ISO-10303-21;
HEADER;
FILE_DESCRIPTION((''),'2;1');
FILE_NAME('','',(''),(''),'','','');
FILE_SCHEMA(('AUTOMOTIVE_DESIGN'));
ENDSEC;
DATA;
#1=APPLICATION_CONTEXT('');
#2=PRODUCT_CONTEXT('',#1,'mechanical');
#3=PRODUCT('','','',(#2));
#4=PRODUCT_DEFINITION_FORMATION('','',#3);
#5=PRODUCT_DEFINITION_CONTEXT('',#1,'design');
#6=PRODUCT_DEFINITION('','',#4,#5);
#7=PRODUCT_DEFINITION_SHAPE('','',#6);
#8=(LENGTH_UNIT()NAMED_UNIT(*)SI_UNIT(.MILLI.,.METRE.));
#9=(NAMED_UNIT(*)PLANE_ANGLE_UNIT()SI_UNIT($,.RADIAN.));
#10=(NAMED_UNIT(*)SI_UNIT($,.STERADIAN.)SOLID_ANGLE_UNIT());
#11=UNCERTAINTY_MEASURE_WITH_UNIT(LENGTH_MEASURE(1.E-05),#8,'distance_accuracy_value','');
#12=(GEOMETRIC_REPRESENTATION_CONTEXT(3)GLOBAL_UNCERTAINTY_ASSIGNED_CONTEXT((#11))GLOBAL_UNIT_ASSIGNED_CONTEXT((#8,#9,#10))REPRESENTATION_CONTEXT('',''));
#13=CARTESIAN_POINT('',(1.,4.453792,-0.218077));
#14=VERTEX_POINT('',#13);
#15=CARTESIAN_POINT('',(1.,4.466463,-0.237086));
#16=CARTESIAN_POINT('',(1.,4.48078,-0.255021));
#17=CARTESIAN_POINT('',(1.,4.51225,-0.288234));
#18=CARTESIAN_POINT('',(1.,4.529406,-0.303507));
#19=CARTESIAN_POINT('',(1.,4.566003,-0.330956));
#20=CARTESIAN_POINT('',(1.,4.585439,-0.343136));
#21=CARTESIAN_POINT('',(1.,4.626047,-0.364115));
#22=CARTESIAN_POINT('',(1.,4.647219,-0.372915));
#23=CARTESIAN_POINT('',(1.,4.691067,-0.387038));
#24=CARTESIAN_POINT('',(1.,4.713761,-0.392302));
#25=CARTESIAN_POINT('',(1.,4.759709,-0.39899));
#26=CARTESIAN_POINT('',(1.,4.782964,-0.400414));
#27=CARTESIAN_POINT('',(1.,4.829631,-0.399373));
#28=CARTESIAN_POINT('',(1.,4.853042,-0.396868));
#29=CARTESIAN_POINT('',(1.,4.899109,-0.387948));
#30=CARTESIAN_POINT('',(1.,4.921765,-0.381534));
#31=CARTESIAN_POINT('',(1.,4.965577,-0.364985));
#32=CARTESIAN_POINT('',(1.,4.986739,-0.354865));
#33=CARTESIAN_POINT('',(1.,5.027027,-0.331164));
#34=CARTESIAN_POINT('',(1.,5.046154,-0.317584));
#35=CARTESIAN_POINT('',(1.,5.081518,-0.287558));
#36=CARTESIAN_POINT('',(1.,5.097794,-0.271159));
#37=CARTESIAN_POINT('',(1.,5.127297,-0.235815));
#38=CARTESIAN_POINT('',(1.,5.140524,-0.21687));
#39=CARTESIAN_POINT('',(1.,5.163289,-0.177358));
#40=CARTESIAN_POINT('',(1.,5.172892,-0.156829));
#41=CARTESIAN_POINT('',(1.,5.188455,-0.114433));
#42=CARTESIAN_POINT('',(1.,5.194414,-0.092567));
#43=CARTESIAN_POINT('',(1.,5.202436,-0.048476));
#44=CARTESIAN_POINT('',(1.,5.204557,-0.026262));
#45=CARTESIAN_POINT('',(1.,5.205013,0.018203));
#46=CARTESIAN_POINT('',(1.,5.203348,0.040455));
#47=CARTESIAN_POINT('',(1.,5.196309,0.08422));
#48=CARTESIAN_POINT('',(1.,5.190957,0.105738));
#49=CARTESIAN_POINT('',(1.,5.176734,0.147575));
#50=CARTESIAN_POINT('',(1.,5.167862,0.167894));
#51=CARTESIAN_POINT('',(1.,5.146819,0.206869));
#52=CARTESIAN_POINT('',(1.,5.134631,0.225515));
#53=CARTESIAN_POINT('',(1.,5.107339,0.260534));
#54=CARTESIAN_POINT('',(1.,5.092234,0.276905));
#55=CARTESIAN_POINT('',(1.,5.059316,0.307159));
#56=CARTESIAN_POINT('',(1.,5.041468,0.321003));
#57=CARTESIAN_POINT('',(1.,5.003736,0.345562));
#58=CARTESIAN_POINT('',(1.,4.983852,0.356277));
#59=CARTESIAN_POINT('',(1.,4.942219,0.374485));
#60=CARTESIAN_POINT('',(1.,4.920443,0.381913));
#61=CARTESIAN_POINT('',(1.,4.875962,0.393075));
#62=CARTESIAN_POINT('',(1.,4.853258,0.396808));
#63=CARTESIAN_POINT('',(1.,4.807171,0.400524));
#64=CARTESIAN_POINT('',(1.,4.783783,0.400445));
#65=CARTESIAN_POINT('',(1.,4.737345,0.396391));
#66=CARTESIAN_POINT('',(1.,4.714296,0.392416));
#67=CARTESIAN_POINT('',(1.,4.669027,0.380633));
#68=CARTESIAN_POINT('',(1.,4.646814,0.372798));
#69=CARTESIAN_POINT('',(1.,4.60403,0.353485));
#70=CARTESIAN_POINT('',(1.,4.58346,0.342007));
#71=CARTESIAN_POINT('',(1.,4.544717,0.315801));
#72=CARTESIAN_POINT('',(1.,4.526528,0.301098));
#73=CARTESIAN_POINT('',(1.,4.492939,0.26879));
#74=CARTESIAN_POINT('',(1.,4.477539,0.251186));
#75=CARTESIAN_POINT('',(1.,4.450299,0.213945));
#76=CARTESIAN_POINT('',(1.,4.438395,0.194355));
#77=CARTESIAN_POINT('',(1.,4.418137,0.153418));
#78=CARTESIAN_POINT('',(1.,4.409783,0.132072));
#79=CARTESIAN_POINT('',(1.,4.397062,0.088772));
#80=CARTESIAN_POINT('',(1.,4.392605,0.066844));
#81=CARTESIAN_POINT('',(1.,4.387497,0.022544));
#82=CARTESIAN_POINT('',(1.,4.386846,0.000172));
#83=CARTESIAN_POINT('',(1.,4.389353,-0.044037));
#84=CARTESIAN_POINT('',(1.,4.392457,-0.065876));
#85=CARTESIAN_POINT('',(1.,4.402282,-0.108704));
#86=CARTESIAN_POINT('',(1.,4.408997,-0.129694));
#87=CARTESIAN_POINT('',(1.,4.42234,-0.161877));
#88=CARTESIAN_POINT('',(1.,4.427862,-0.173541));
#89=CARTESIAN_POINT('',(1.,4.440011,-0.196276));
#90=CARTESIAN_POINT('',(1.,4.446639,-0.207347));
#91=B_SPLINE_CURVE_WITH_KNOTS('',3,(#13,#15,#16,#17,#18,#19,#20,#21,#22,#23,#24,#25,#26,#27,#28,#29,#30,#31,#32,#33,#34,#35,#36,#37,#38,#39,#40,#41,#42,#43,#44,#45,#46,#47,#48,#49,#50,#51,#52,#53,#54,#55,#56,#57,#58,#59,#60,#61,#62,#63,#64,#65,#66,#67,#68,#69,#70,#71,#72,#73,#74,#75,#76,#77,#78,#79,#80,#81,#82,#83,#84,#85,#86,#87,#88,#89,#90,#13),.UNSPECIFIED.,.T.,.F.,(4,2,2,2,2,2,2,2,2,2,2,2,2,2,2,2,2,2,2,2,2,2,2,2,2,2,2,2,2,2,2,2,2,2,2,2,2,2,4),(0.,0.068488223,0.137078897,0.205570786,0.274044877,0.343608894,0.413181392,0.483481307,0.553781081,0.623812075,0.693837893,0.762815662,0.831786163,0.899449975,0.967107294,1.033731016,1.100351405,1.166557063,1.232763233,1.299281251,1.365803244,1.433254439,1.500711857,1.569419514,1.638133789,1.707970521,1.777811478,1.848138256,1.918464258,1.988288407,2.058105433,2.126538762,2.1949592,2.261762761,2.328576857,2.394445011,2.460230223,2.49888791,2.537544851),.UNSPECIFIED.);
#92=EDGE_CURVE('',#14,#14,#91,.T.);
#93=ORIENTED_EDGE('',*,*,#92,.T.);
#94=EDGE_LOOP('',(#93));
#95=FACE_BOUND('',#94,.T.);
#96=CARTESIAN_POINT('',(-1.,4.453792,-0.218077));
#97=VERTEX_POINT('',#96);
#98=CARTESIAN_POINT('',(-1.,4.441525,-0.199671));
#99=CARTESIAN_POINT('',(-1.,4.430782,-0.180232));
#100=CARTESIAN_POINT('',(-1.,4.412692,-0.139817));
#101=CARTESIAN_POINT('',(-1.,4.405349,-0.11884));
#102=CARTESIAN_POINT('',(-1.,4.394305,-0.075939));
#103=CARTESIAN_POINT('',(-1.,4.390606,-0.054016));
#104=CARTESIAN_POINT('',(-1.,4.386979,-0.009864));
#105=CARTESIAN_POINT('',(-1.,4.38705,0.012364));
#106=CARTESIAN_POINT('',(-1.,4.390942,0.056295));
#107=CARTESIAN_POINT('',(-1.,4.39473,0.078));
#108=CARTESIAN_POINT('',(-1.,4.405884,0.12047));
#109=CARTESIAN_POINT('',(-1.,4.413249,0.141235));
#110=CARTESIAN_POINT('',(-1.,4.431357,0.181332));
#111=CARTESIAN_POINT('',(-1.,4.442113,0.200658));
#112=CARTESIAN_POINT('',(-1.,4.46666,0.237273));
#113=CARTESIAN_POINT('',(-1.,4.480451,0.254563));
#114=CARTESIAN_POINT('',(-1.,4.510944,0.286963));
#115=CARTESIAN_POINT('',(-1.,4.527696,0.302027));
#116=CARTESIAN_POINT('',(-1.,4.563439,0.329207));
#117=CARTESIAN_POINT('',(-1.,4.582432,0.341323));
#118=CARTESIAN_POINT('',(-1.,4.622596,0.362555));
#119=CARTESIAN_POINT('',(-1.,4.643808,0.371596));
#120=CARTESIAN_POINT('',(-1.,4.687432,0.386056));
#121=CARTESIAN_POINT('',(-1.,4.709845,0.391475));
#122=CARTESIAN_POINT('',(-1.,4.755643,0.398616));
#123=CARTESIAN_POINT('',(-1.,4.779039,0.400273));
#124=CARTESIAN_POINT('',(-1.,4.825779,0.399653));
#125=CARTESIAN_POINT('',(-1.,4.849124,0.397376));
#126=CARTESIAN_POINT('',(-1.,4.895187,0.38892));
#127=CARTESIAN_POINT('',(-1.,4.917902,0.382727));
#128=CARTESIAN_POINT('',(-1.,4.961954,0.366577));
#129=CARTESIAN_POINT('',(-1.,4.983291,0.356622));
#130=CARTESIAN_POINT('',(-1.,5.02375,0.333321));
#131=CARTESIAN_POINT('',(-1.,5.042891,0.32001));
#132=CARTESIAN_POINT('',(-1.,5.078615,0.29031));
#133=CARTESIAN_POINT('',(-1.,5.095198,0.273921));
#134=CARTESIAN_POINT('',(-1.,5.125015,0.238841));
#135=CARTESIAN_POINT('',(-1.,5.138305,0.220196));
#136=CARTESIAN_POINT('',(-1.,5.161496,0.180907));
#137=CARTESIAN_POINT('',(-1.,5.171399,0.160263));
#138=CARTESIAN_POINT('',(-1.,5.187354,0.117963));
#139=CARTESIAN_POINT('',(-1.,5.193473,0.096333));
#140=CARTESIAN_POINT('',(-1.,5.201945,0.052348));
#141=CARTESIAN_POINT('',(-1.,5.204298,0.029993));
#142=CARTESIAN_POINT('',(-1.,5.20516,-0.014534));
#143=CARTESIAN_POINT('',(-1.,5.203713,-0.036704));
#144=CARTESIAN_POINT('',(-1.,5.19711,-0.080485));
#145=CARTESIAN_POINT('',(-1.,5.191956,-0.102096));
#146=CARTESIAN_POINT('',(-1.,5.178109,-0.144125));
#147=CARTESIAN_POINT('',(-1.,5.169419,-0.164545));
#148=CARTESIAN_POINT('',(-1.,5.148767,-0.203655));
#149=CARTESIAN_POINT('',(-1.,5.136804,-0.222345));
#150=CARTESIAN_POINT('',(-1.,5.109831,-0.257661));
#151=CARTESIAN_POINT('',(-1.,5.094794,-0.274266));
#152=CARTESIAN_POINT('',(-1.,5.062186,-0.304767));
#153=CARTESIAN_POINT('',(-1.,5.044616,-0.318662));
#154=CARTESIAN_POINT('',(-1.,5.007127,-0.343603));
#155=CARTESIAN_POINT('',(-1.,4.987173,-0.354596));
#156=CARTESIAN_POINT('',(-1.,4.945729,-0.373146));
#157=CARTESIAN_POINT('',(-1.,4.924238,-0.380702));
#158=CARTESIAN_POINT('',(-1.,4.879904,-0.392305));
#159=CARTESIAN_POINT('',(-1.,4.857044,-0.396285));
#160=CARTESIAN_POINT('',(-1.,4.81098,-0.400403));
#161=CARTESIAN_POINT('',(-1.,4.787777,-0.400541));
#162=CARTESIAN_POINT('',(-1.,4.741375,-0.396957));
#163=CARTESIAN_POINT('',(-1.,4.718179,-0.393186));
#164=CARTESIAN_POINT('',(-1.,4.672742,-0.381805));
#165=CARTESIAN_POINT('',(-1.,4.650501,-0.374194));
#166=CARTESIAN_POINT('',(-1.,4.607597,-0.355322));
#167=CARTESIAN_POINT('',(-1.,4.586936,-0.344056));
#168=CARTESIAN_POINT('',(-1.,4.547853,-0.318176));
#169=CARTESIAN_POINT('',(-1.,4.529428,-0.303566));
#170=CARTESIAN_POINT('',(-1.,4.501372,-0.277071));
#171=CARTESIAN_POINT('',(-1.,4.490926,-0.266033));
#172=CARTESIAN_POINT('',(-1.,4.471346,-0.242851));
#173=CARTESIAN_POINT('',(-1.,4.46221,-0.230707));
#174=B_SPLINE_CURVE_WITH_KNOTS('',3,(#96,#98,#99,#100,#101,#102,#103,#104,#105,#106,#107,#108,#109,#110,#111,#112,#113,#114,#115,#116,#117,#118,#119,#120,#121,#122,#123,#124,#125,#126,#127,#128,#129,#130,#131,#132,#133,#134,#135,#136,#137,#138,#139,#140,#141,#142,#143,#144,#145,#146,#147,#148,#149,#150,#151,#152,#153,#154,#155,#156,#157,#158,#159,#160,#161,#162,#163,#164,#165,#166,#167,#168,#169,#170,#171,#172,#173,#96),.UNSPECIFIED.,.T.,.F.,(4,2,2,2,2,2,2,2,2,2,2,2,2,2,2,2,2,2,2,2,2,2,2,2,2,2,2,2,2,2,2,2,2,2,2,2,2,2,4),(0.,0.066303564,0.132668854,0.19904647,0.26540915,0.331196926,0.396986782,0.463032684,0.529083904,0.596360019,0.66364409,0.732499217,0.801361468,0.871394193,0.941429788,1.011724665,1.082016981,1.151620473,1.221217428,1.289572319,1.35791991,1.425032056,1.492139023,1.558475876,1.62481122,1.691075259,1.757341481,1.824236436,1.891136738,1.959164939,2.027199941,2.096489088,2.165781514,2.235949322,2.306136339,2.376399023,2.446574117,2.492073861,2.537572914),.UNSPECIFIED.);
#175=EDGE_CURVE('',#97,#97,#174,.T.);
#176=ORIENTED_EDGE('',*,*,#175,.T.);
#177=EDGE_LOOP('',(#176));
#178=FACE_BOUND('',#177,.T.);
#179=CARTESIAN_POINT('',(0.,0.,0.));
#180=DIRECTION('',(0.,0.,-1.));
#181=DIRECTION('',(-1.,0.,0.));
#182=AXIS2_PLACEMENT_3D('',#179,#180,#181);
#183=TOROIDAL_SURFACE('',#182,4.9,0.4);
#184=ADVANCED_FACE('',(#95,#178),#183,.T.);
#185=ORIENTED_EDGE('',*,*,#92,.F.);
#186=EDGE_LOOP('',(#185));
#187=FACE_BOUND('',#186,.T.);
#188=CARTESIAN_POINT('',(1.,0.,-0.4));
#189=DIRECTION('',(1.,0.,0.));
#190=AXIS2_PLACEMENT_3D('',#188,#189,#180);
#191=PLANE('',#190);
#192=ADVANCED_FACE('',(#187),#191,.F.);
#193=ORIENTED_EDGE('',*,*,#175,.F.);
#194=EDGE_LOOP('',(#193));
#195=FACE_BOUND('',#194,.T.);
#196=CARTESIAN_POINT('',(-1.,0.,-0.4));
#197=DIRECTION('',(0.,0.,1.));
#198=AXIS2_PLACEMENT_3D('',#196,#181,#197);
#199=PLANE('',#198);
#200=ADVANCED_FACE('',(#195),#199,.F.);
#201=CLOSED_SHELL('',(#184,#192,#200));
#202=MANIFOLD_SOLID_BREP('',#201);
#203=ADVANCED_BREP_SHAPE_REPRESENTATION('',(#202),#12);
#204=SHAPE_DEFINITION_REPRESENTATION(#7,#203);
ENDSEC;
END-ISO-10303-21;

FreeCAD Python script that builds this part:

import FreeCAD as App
import Part
import Sketcher
Q = App.Units.Quantity


def add_polygon(sketch, points):
    """Adds a closed chain of lines whose ends are joined by coincident constraints."""
    first, n = sketch.GeometryCount, len(points)
    for a, b in zip(points, points[1:] + points[:1]):
        sketch.addGeometry(Part.LineSegment(App.Vector(*a, 0), App.Vector(*b, 0)), False)
    for i in range(n):
        sketch.addConstraint(Sketcher.Constraint("Coincident", first + i, 2, first + (i + 1) % n, 1))

doc = App.newDocument("Part")
params = doc.addObject("Spreadsheet::Sheet", "Params")
for row, (alias, value) in enumerate([
    ("sketch1_diameter", "0.8 mm"),
    ("sketch2_diameter", "9.8 mm"),
    ("sketch3_width", "2 mm"),
    ("sketch3_height", "5.3 mm"),
], start=1):
    params.set(f"A{row}", alias)
    params.set(f"B{row}", "=" + value)
    params.setAlias(f"B{row}", alias)

body = doc.addObject("PartDesign::Body", "Body")

sketch1 = body.newObject("Sketcher::SketchObject", "Sketch")
sketch1.AttachmentSupport = (doc.getObject("XZ_Plane"), [""])
sketch1.MapMode = "FlatFace"
sketch1.addGeometry(Part.Circle(App.Vector(4.9, 0, 0), App.Vector(0, 0, 1), 0.4), False)
sketch1.addConstraint([
    Sketcher.Constraint("PointOnObject", 0, 3, -1),
    Sketcher.Constraint("Diameter", 0, Q("0.8 mm")),
    Sketcher.Constraint("DistanceX", -1, 1, 0, 3, Q("4.9 mm")),
])
sketch1.setExpression("Constraints[1]", "Params.sketch1_diameter")

sketch2 = body.newObject("Sketcher::SketchObject", "Sketch001")
sketch2.AttachmentSupport = (doc.getObject("XY_Plane"), [""])
sketch2.MapMode = "FlatFace"
sketch2.addGeometry(Part.Circle(App.Vector(0, 0, 0), App.Vector(0, 0, 1), 4.9), False)
sketch2.addConstraint([
    Sketcher.Constraint("Coincident", 0, 3, -1, 1),
    Sketcher.Constraint("Diameter", 0, Q("9.8 mm")),
])
sketch2.setExpression("Constraints[1]", "Params.sketch2_diameter")
doc.recompute()

additivepipe = body.newObject("PartDesign::AdditivePipe", "AdditivePipe")
additivepipe.Profile = sketch1
additivepipe.Spine = (sketch2, ["Edge1"])

sketch3 = body.newObject("Sketcher::SketchObject", "Sketch002")
sketch3.AttachmentSupport = (doc.getObject("XY_Plane"), [""])
sketch3.MapMode = "FlatFace"
add_polygon(sketch3, [(-1, 5.3), (-1, 0), (1, 0), (1, 5.3)])
sketch3.addConstraint([
    Sketcher.Constraint("Vertical", 0),
    Sketcher.Constraint("Horizontal", 1),
    Sketcher.Constraint("Vertical", 2),
    Sketcher.Constraint("Horizontal", 3),
    Sketcher.Constraint("Symmetric", 0, 2, 1, 2, -1, 1),
    Sketcher.Constraint("DistanceX", 1, 1, 1, 2, Q("2 mm")),
    Sketcher.Constraint("DistanceY", 0, 2, 0, 1, Q("5.3 mm")),
])
sketch3.setExpression("Constraints[9]", "Params.sketch3_width")
sketch3.setExpression("Constraints[10]", "Params.sketch3_height")
pocket1 = body.newObject("PartDesign::Pocket", "Pocket")
pocket1.Profile = sketch3
pocket1.Type = "ThroughAll"
pocket1.Midplane = True

doc.recompute()
